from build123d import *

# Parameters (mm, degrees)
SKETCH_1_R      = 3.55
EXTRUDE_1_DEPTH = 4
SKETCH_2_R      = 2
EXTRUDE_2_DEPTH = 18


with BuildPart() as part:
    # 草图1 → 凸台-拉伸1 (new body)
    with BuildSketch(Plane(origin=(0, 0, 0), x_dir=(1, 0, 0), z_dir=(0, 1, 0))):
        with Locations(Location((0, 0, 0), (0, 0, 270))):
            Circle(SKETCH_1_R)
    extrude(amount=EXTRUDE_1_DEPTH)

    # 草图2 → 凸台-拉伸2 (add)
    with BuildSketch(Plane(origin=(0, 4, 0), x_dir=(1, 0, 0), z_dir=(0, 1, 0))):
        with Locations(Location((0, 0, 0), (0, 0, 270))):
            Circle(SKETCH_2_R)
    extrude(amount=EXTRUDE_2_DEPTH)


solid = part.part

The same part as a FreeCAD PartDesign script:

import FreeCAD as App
import Part
import Sketcher
Q = App.Units.Quantity

doc = App.newDocument("Part")
body = doc.addObject("PartDesign::Body", "Body")

# Sketch on XZ plane
sketch1 = body.newObject("Sketcher::SketchObject", "Sketch")
sketch1.AttachmentSupport = (doc.getObject("XZ_Plane"), [""])
sketch1.MapMode = "FlatFace"
sketch1.addGeometry(Part.Circle(App.Vector(0, 0, 0), App.Vector(0, 0, 1), 3.5), False)
sketch1.addConstraint([
    Sketcher.Constraint("Coincident", 0, 3, -1, 1),
    Sketcher.Constraint("Diameter", 0, Q("7.1 mm")),
])
pad1 = body.newObject("PartDesign::Pad", "Pad")
pad1.Profile = sketch1
pad1.Length = 4
pad1.Reversed = True

# Sketch on XZ plane
sketch2 = body.newObject("Sketcher::SketchObject", "Sketch001")
sketch2.AttachmentSupport = (doc.getObject("XZ_Plane"), [""])
sketch2.MapMode = "FlatFace"
sketch2.AttachmentOffset = App.Placement(App.Vector(0, 0, -4), App.Rotation())
sketch2.addGeometry(Part.Circle(App.Vector(0, 0, 0), App.Vector(0, 0, 1), 2), False)
sketch2.addConstraint([
    Sketcher.Constraint("Coincident", 0, 3, -1, 1),
    Sketcher.Constraint("Diameter", 0, Q("4 mm")),
])
pad2 = body.newObject("PartDesign::Pad", "Pad001")
pad2.Profile = sketch2
pad2.Length = 18
pad2.Reversed = True

doc.recompute()
